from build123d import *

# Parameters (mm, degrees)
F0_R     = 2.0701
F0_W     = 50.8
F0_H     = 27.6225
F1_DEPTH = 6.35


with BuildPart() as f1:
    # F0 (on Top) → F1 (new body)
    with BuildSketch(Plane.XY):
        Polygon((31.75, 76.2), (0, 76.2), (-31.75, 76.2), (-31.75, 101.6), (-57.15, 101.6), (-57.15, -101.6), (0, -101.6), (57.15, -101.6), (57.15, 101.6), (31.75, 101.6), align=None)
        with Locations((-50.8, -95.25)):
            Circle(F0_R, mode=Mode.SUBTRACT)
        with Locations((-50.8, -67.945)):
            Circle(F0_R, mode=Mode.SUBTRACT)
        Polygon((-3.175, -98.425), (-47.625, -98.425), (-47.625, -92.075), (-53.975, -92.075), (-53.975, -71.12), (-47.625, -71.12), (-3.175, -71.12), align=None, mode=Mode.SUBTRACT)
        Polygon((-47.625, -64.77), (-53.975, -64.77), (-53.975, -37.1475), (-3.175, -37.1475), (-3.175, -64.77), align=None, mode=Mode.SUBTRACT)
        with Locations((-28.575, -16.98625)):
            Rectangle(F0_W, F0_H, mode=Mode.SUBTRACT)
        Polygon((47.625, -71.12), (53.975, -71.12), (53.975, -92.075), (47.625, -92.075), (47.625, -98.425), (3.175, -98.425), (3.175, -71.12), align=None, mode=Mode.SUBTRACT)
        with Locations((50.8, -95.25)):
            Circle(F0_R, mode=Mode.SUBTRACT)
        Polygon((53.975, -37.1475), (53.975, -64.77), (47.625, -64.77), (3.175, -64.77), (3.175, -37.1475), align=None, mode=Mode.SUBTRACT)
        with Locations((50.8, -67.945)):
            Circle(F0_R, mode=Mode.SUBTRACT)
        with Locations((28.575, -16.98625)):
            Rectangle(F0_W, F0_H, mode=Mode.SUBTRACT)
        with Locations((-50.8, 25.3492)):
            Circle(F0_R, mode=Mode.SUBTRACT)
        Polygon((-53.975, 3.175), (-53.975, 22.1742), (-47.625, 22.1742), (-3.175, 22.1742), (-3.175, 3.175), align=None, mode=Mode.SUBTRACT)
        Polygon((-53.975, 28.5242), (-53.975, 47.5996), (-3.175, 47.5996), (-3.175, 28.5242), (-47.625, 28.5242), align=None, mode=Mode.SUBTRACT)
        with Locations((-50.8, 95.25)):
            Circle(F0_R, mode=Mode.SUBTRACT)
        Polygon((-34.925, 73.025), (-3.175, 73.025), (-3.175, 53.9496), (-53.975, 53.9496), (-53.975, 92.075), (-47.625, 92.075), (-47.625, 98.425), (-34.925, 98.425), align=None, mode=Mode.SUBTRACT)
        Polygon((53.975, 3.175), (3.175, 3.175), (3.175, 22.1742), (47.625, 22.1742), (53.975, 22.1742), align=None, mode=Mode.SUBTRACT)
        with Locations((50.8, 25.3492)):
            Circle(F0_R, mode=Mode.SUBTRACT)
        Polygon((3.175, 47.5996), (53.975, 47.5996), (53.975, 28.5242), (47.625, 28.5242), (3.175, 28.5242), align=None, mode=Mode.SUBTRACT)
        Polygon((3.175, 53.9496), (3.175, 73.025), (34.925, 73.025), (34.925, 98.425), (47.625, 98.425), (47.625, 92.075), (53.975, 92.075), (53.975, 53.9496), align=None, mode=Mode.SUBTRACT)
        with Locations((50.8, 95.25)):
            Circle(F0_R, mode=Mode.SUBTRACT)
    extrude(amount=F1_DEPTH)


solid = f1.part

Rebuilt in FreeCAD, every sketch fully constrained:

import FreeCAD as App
import Part
import Sketcher
from FreeCAD import Vector
Q = App.Units.Quantity

doc = App.newDocument("Part")
params = doc.addObject("Spreadsheet::Sheet", "Params")
for row, (alias, value) in enumerate([
    ("sketch1_width", "1 in"),
    ("sketch1_width2", "2 in"),
    ("sketch1_height", "8 in"),
    ("sketch1_diameter", "0.163 in"),
    ("sketch1_width3", "2.5 in"),
    ("pad1_length", "0.25 in"),
], start=1):
    params.set(f"A{row}", alias)
    params.set(f"B{row}", "=" + value)
    params.setAlias(f"B{row}", alias)

body = doc.addObject("PartDesign::Body", "Body")

sketch1 = body.newObject("Sketcher::SketchObject", "Sketch")
sketch1.AttachmentSupport = (doc.getObject("XY_Plane"), [""])
sketch1.MapMode = "FlatFace"
sketch1.addGeometry(Part.LineSegment(Vector(31.75, 76.2, 0), Vector(-31.75, 76.2, 0)), False)
sketch1.addGeometry(Part.LineSegment(Vector(-31.75, 76.2, 0), Vector(-31.75, 101.6, 0)), False)
sketch1.addGeometry(Part.LineSegment(Vector(-31.75, 101.6, 0), Vector(-57.15, 101.6, 0)), False)
sketch1.addGeometry(Part.LineSegment(Vector(-57.15, 101.6, 0), Vector(-57.15, -101.6, 0)), False)
sketch1.addGeometry(Part.LineSegment(Vector(-57.15, -101.6, 0), Vector(57.15, -101.6, 0)), False)
sketch1.addGeometry(Part.LineSegment(Vector(57.15, -101.6, 0), Vector(57.15, 101.6, 0)), False)
sketch1.addGeometry(Part.LineSegment(Vector(57.15, 101.6, 0), Vector(31.75, 101.6, 0)), False)
sketch1.addGeometry(Part.LineSegment(Vector(31.75, 101.6, 0), Vector(31.75, 76.2, 0)), False)
sketch1.addGeometry(Part.Circle(Vector(-50.8, -95.25, 0), Vector(0, 0, 1), 2.0701), False)
sketch1.addGeometry(Part.LineSegment(Vector(-3.175, -71.12, 0), Vector(-3.175, -98.425, 0)), False)
sketch1.addGeometry(Part.LineSegment(Vector(-3.175, -98.425, 0), Vector(-47.625, -98.425, 0)), False)
sketch1.addGeometry(Part.LineSegment(Vector(-47.625, -98.425, 0), Vector(-47.625, -92.075, 0)), False)
sketch1.addGeometry(Part.LineSegment(Vector(-47.625, -92.075, 0), Vector(-53.975, -92.075, 0)), False)
sketch1.addGeometry(Part.LineSegment(Vector(-53.975, -92.075, 0), Vector(-53.975, -71.12, 0)), False)
sketch1.addGeometry(Part.LineSegment(Vector(-53.975, -71.12, 0), Vector(-3.175, -71.12, 0)), False)
sketch1.addGeometry(Part.Circle(Vector(-50.8, -67.945, 0), Vector(0, 0, 1), 2.0701), False)
sketch1.addGeometry(Part.LineSegment(Vector(-3.175, -64.77, 0), Vector(-53.975, -64.77, 0)), False)
sketch1.addGeometry(Part.LineSegment(Vector(-53.975, -64.77, 0), Vector(-53.975, -37.1475, 0)), False)
sketch1.addGeometry(Part.LineSegment(Vector(-53.975, -37.1475, 0), Vector(-3.175, -37.1475, 0)), False)
sketch1.addGeometry(Part.LineSegment(Vector(-3.175, -37.1475, 0), Vector(-3.175, -64.77, 0)), False)
sketch1.addGeometry(Part.LineSegment(Vector(-3.175, -30.7975, 0), Vector(-53.975, -30.7975, 0)), False)
sketch1.addGeometry(Part.LineSegment(Vector(-53.975, -30.7975, 0), Vector(-53.975, -3.175, 0)), False)
sketch1.addGeometry(Part.LineSegment(Vector(-53.975, -3.175, 0), Vector(-3.175, -3.175, 0)), False)
sketch1.addGeometry(Part.LineSegment(Vector(-3.175, -3.175, 0), Vector(-3.175, -30.7975, 0)), False)
sketch1.addGeometry(Part.LineSegment(Vector(3.175, -71.12, 0), Vector(53.975, -71.12, 0)), False)
sketch1.addGeometry(Part.LineSegment(Vector(53.975, -71.12, 0), Vector(53.975, -92.075, 0)), False)
sketch1.addGeometry(Part.LineSegment(Vector(53.975, -92.075, 0), Vector(47.625, -92.075, 0)), False)
sketch1.addGeometry(Part.LineSegment(Vector(47.625, -92.075, 0), Vector(47.625, -98.425, 0)), False)
sketch1.addGeometry(Part.LineSegment(Vector(47.625, -98.425, 0), Vector(3.175, -98.425, 0)), False)
sketch1.addGeometry(Part.LineSegment(Vector(3.175, -98.425, 0), Vector(3.175, -71.12, 0)), False)
sketch1.addGeometry(Part.Circle(Vector(50.8, -95.25, 0), Vector(0, 0, 1), 2.0701), False)
sketch1.addGeometry(Part.LineSegment(Vector(3.175, -37.1475, 0), Vector(53.975, -37.1475, 0)), False)
sketch1.addGeometry(Part.LineSegment(Vector(53.975, -37.1475, 0), Vector(53.975, -64.77, 0)), False)
sketch1.addGeometry(Part.LineSegment(Vector(53.975, -64.77, 0), Vector(3.175, -64.77, 0)), False)
sketch1.addGeometry(Part.LineSegment(Vector(3.175, -64.77, 0), Vector(3.175, -37.1475, 0)), False)
sketch1.addGeometry(Part.Circle(Vector(50.8, -67.945, 0), Vector(0, 0, 1), 2.0701), False)
sketch1.addGeometry(Part.LineSegment(Vector(53.975, -30.7975, 0), Vector(3.175, -30.7975, 0)), False)
sketch1.addGeometry(Part.LineSegment(Vector(3.175, -30.7975, 0), Vector(3.175, -3.175, 0)), False)
sketch1.addGeometry(Part.LineSegment(Vector(3.175, -3.175, 0), Vector(53.975, -3.175, 0)), False)
sketch1.addGeometry(Part.LineSegment(Vector(53.975, -3.175, 0), Vector(53.975, -30.7975, 0)), False)
sketch1.addGeometry(Part.LineSegment(Vector(-3.175, 3.175, 0), Vector(-53.975, 3.175, 0)), False)
sketch1.addGeometry(Part.LineSegment(Vector(-53.975, 3.175, 0), Vector(-53.975, 22.1742, 0)), False)
sketch1.addGeometry(Part.LineSegment(Vector(-53.975, 22.1742, 0), Vector(-3.175, 22.1742, 0)), False)
sketch1.addGeometry(Part.LineSegment(Vector(-3.175, 22.1742, 0), Vector(-3.175, 3.175, 0)), False)
sketch1.addGeometry(Part.Circle(Vector(-50.8, 25.3492, 0), Vector(0, 0, 1), 2.0701), False)
sketch1.addGeometry(Part.LineSegment(Vector(-3.175, 28.5242, 0), Vector(-53.975, 28.5242, 0)), False)
sketch1.addGeometry(Part.LineSegment(Vector(-53.975, 28.5242, 0), Vector(-53.975, 47.5996, 0)), False)
sketch1.addGeometry(Part.LineSegment(Vector(-53.975, 47.5996, 0), Vector(-3.175, 47.5996, 0)), False)
sketch1.addGeometry(Part.LineSegment(Vector(-3.175, 47.5996, 0), Vector(-3.175, 28.5242, 0)), False)
sketch1.addGeometry(Part.Circle(Vector(-50.8, 95.25, 0), Vector(0, 0, 1), 2.0701), False)
sketch1.addGeometry(Part.LineSegment(Vector(-34.925, 98.425, 0), Vector(-34.925, 73.025, 0)), False)
sketch1.addGeometry(Part.LineSegment(Vector(-34.925, 73.025, 0), Vector(-3.175, 73.025, 0)), False)
sketch1.addGeometry(Part.LineSegment(Vector(-3.175, 73.025, 0), Vector(-3.175, 53.9496, 0)), False)
sketch1.addGeometry(Part.LineSegment(Vector(-3.175, 53.9496, 0), Vector(-53.975, 53.9496, 0)), False)
sketch1.addGeometry(Part.LineSegment(Vector(-53.975, 53.9496, 0), Vector(-53.975, 92.075, 0)), False)
sketch1.addGeometry(Part.LineSegment(Vector(-53.975, 92.075, 0), Vector(-47.625, 92.075, 0)), False)
sketch1.addGeometry(Part.LineSegment(Vector(-47.625, 92.075, 0), Vector(-47.625, 98.425, 0)), False)
sketch1.addGeometry(Part.LineSegment(Vector(-47.625, 98.425, 0), Vector(-34.925, 98.425, 0)), False)
sketch1.addGeometry(Part.LineSegment(Vector(53.975, 22.1742, 0), Vector(53.975, 3.175, 0)), False)
sketch1.addGeometry(Part.LineSegment(Vector(53.975, 3.175, 0), Vector(3.175, 3.175, 0)), False)
sketch1.addGeometry(Part.LineSegment(Vector(3.175, 3.175, 0), Vector(3.175, 22.1742, 0)), False)
sketch1.addGeometry(Part.LineSegment(Vector(3.175, 22.1742, 0), Vector(53.975, 22.1742, 0)), False)
sketch1.addGeometry(Part.LineSegment(Vector(3.175, 28.5242, 0), Vector(3.175, 47.5996, 0)), False)
sketch1.addGeometry(Part.LineSegment(Vector(3.175, 47.5996, 0), Vector(53.975, 47.5996, 0)), False)
sketch1.addGeometry(Part.LineSegment(Vector(53.975, 47.5996, 0), Vector(53.975, 28.5242, 0)), False)
sketch1.addGeometry(Part.LineSegment(Vector(53.975, 28.5242, 0), Vector(3.175, 28.5242, 0)), False)
sketch1.addGeometry(Part.Circle(Vector(50.8, 25.3492, 0), Vector(0, 0, 1), 2.0701), False)
sketch1.addGeometry(Part.LineSegment(Vector(53.975, 53.9496, 0), Vector(3.175, 53.9496, 0)), False)
sketch1.addGeometry(Part.LineSegment(Vector(3.175, 53.9496, 0), Vector(3.175, 73.025, 0)), False)
sketch1.addGeometry(Part.LineSegment(Vector(3.175, 73.025, 0), Vector(34.925, 73.025, 0)), False)
sketch1.addGeometry(Part.LineSegment(Vector(34.925, 73.025, 0), Vector(34.925, 98.425, 0)), False)
sketch1.addGeometry(Part.LineSegment(Vector(34.925, 98.425, 0), Vector(47.625, 98.425, 0)), False)
sketch1.addGeometry(Part.LineSegment(Vector(47.625, 98.425, 0), Vector(47.625, 92.075, 0)), False)
sketch1.addGeometry(Part.LineSegment(Vector(47.625, 92.075, 0), Vector(53.975, 92.075, 0)), False)
sketch1.addGeometry(Part.LineSegment(Vector(53.975, 92.075, 0), Vector(53.975, 53.9496, 0)), False)
sketch1.addGeometry(Part.Circle(Vector(50.8, 95.25, 0), Vector(0, 0, 1), 2.0701), False)
sketch1.addConstraint(Sketcher.Constraint("Coincident", 0, 2, 1, 1))
sketch1.addConstraint(Sketcher.Constraint("Coincident", 1, 2, 2, 1))
sketch1.addConstraint(Sketcher.Constraint("Coincident", 2, 2, 3, 1))
sketch1.addConstraint(Sketcher.Constraint("Coincident", 3, 2, 4, 1))
sketch1.addConstraint(Sketcher.Constraint("Coincident", 4, 2, 5, 1))
sketch1.addConstraint(Sketcher.Constraint("Coincident", 5, 2, 6, 1))
sketch1.addConstraint(Sketcher.Constraint("Coincident", 6, 2, 7, 1))
sketch1.addConstraint(Sketcher.Constraint("Coincident", 7, 2, 0, 1))
sketch1.addConstraint(Sketcher.Constraint("Coincident", 9, 2, 10, 1))
sketch1.addConstraint(Sketcher.Constraint("Coincident", 10, 2, 11, 1))
sketch1.addConstraint(Sketcher.Constraint("Coincident", 11, 2, 12, 1))
sketch1.addConstraint(Sketcher.Constraint("Coincident", 12, 2, 13, 1))
sketch1.addConstraint(Sketcher.Constraint("Coincident", 13, 2, 14, 1))
sketch1.addConstraint(Sketcher.Constraint("Coincident", 14, 2, 9, 1))
sketch1.addConstraint(Sketcher.Constraint("Coincident", 16, 2, 17, 1))
sketch1.addConstraint(Sketcher.Constraint("Coincident", 17, 2, 18, 1))
sketch1.addConstraint(Sketcher.Constraint("Coincident", 18, 2, 19, 1))
sketch1.addConstraint(Sketcher.Constraint("Coincident", 19, 2, 16, 1))
sketch1.addConstraint(Sketcher.Constraint("Coincident", 20, 2, 21, 1))
sketch1.addConstraint(Sketcher.Constraint("Coincident", 21, 2, 22, 1))
sketch1.addConstraint(Sketcher.Constraint("Coincident", 22, 2, 23, 1))
sketch1.addConstraint(Sketcher.Constraint("Coincident", 23, 2, 20, 1))
sketch1.addConstraint(Sketcher.Constraint("Coincident", 24, 2, 25, 1))
sketch1.addConstraint(Sketcher.Constraint("Coincident", 25, 2, 26, 1))
sketch1.addConstraint(Sketcher.Constraint("Coincident", 26, 2, 27, 1))
sketch1.addConstraint(Sketcher.Constraint("Coincident", 27, 2, 28, 1))
sketch1.addConstraint(Sketcher.Constraint("Coincident", 28, 2, 29, 1))
sketch1.addConstraint(Sketcher.Constraint("Coincident", 29, 2, 24, 1))
sketch1.addConstraint(Sketcher.Constraint("Coincident", 31, 2, 32, 1))
sketch1.addConstraint(Sketcher.Constraint("Coincident", 32, 2, 33, 1))
sketch1.addConstraint(Sketcher.Constraint("Coincident", 33, 2, 34, 1))
sketch1.addConstraint(Sketcher.Constraint("Coincident", 34, 2, 31, 1))
sketch1.addConstraint(Sketcher.Constraint("Coincident", 36, 2, 37, 1))
sketch1.addConstraint(Sketcher.Constraint("Coincident", 37, 2, 38, 1))
sketch1.addConstraint(Sketcher.Constraint("Coincident", 38, 2, 39, 1))
sketch1.addConstraint(Sketcher.Constraint("Coincident", 39, 2, 36, 1))
sketch1.addConstraint(Sketcher.Constraint("Coincident", 40, 2, 41, 1))
sketch1.addConstraint(Sketcher.Constraint("Coincident", 41, 2, 42, 1))
sketch1.addConstraint(Sketcher.Constraint("Coincident", 42, 2, 43, 1))
sketch1.addConstraint(Sketcher.Constraint("Coincident", 43, 2, 40, 1))
sketch1.addConstraint(Sketcher.Constraint("Coincident", 45, 2, 46, 1))
sketch1.addConstraint(Sketcher.Constraint("Coincident", 46, 2, 47, 1))
sketch1.addConstraint(Sketcher.Constraint("Coincident", 47, 2, 48, 1))
sketch1.addConstraint(Sketcher.Constraint("Coincident", 48, 2, 45, 1))
sketch1.addConstraint(Sketcher.Constraint("Coincident", 50, 2, 51, 1))
sketch1.addConstraint(Sketcher.Constraint("Coincident", 51, 2, 52, 1))
sketch1.addConstraint(Sketcher.Constraint("Coincident", 52, 2, 53, 1))
sketch1.addConstraint(Sketcher.Constraint("Coincident", 53, 2, 54, 1))
sketch1.addConstraint(Sketcher.Constraint("Coincident", 54, 2, 55, 1))
sketch1.addConstraint(Sketcher.Constraint("Coincident", 55, 2, 56, 1))
sketch1.addConstraint(Sketcher.Constraint("Coincident", 56, 2, 57, 1))
sketch1.addConstraint(Sketcher.Constraint("Coincident", 57, 2, 50, 1))
sketch1.addConstraint(Sketcher.Constraint("Coincident", 58, 2, 59, 1))
sketch1.addConstraint(Sketcher.Constraint("Coincident", 59, 2, 60, 1))
sketch1.addConstraint(Sketcher.Constraint("Coincident", 60, 2, 61, 1))
sketch1.addConstraint(Sketcher.Constraint("Coincident", 61, 2, 58, 1))
sketch1.addConstraint(Sketcher.Constraint("Coincident", 62, 2, 63, 1))
sketch1.addConstraint(Sketcher.Constraint("Coincident", 63, 2, 64, 1))
sketch1.addConstraint(Sketcher.Constraint("Coincident", 64, 2, 65, 1))
sketch1.addConstraint(Sketcher.Constraint("Coincident", 65, 2, 62, 1))
sketch1.addConstraint(Sketcher.Constraint("Coincident", 67, 2, 68, 1))
sketch1.addConstraint(Sketcher.Constraint("Coincident", 68, 2, 69, 1))
sketch1.addConstraint(Sketcher.Constraint("Coincident", 69, 2, 70, 1))
sketch1.addConstraint(Sketcher.Constraint("Coincident", 70, 2, 71, 1))
sketch1.addConstraint(Sketcher.Constraint("Coincident", 71, 2, 72, 1))
sketch1.addConstraint(Sketcher.Constraint("Coincident", 72, 2, 73, 1))
sketch1.addConstraint(Sketcher.Constraint("Coincident", 73, 2, 74, 1))
sketch1.addConstraint(Sketcher.Constraint("Coincident", 74, 2, 67, 1))
sketch1.addConstraint(Sketcher.Constraint("Horizontal", 0))
sketch1.addConstraint(Sketcher.Constraint("Vertical", 1))
sketch1.addConstraint(Sketcher.Constraint("Horizontal", 2))
sketch1.addConstraint(Sketcher.Constraint("Vertical", 3))
sketch1.addConstraint(Sketcher.Constraint("Horizontal", 4))
sketch1.addConstraint(Sketcher.Constraint("Vertical", 5))
sketch1.addConstraint(Sketcher.Constraint("Horizontal", 6))
sketch1.addConstraint(Sketcher.Constraint("Vertical", 7))
sketch1.addConstraint(Sketcher.Constraint("Vertical", 9))
sketch1.addConstraint(Sketcher.Constraint("Horizontal", 10))
sketch1.addConstraint(Sketcher.Constraint("Vertical", 11))
sketch1.addConstraint(Sketcher.Constraint("Horizontal", 12))
sketch1.addConstraint(Sketcher.Constraint("Vertical", 13))
sketch1.addConstraint(Sketcher.Constraint("Horizontal", 14))
sketch1.addConstraint(Sketcher.Constraint("Horizontal", 16))
sketch1.addConstraint(Sketcher.Constraint("Vertical", 17))
sketch1.addConstraint(Sketcher.Constraint("Horizontal", 18))
sketch1.addConstraint(Sketcher.Constraint("Vertical", 19))
sketch1.addConstraint(Sketcher.Constraint("Horizontal", 20))
sketch1.addConstraint(Sketcher.Constraint("Vertical", 21))
sketch1.addConstraint(Sketcher.Constraint("Horizontal", 22))
sketch1.addConstraint(Sketcher.Constraint("Vertical", 23))
sketch1.addConstraint(Sketcher.Constraint("Horizontal", 24))
sketch1.addConstraint(Sketcher.Constraint("Vertical", 25))
sketch1.addConstraint(Sketcher.Constraint("Horizontal", 26))
sketch1.addConstraint(Sketcher.Constraint("Vertical", 27))
sketch1.addConstraint(Sketcher.Constraint("Horizontal", 28))
sketch1.addConstraint(Sketcher.Constraint("Vertical", 29))
sketch1.addConstraint(Sketcher.Constraint("Horizontal", 31))
sketch1.addConstraint(Sketcher.Constraint("Vertical", 32))
sketch1.addConstraint(Sketcher.Constraint("Horizontal", 33))
sketch1.addConstraint(Sketcher.Constraint("Vertical", 34))
sketch1.addConstraint(Sketcher.Constraint("Horizontal", 36))
sketch1.addConstraint(Sketcher.Constraint("Vertical", 37))
sketch1.addConstraint(Sketcher.Constraint("Horizontal", 38))
sketch1.addConstraint(Sketcher.Constraint("Vertical", 39))
sketch1.addConstraint(Sketcher.Constraint("Horizontal", 40))
sketch1.addConstraint(Sketcher.Constraint("Vertical", 41))
sketch1.addConstraint(Sketcher.Constraint("Horizontal", 42))
sketch1.addConstraint(Sketcher.Constraint("Vertical", 43))
sketch1.addConstraint(Sketcher.Constraint("Horizontal", 45))
sketch1.addConstraint(Sketcher.Constraint("Vertical", 46))
sketch1.addConstraint(Sketcher.Constraint("Horizontal", 47))
sketch1.addConstraint(Sketcher.Constraint("Vertical", 48))
sketch1.addConstraint(Sketcher.Constraint("Vertical", 50))
sketch1.addConstraint(Sketcher.Constraint("Horizontal", 51))
sketch1.addConstraint(Sketcher.Constraint("Vertical", 52))
sketch1.addConstraint(Sketcher.Constraint("Horizontal", 53))
sketch1.addConstraint(Sketcher.Constraint("Vertical", 54))
sketch1.addConstraint(Sketcher.Constraint("Horizontal", 55))
sketch1.addConstraint(Sketcher.Constraint("Vertical", 56))
sketch1.addConstraint(Sketcher.Constraint("Horizontal", 57))
sketch1.addConstraint(Sketcher.Constraint("Vertical", 58))
sketch1.addConstraint(Sketcher.Constraint("Horizontal", 59))
sketch1.addConstraint(Sketcher.Constraint("Vertical", 60))
sketch1.addConstraint(Sketcher.Constraint("Horizontal", 61))
sketch1.addConstraint(Sketcher.Constraint("Vertical", 62))
sketch1.addConstraint(Sketcher.Constraint("Horizontal", 63))
sketch1.addConstraint(Sketcher.Constraint("Vertical", 64))
sketch1.addConstraint(Sketcher.Constraint("Horizontal", 65))
sketch1.addConstraint(Sketcher.Constraint("Horizontal", 67))
sketch1.addConstraint(Sketcher.Constraint("Vertical", 68))
sketch1.addConstraint(Sketcher.Constraint("Horizontal", 69))
sketch1.addConstraint(Sketcher.Constraint("Vertical", 70))
sketch1.addConstraint(Sketcher.Constraint("Horizontal", 71))
sketch1.addConstraint(Sketcher.Constraint("Vertical", 72))
sketch1.addConstraint(Sketcher.Constraint("Horizontal", 73))
sketch1.addConstraint(Sketcher.Constraint("Vertical", 74))
sketch1.addConstraint(Sketcher.Constraint("Equal", 8, 15))
sketch1.addConstraint(Sketcher.Constraint("Equal", 15, 30))
sketch1.addConstraint(Sketcher.Constraint("Equal", 30, 35))
sketch1.addConstraint(Sketcher.Constraint("Equal", 35, 44))
sketch1.addConstraint(Sketcher.Constraint("Equal", 44, 49))
sketch1.addConstraint(Sketcher.Constraint("Equal", 49, 66))
sketch1.addConstraint(Sketcher.Constraint("Equal", 66, 75))
sketch1.addConstraint(Sketcher.Constraint("Symmetric", 30, 3, 49, 3, -1, 1))
sketch1.addConstraint(Sketcher.Constraint("Symmetric", 8, 3, 75, 3, -1, 1))
sketch1.addConstraint(Sketcher.Constraint("Symmetric", 2, 2, 4, 2, -1, 1))
sketch1.addConstraint(Sketcher.Constraint("Symmetric", 38, 2, 40, 2, -1, 1))
sketch1.addConstraint(Sketcher.Constraint("Symmetric", 25, 2, 54, 2, -1, 1))
sketch1.addConstraint(Sketcher.Constraint("Symmetric", 27, 2, 56, 2, -1, 1))
sketch1.addConstraint(Sketcher.Constraint("Symmetric", 21, 2, 58, 2, -1, 1))
sketch1.addConstraint(Sketcher.Constraint("Symmetric", 10, 2, 71, 2, -1, 1))
sketch1.addConstraint(Sketcher.Constraint("Symmetric", 12, 2, 73, 2, -1, 1))
sketch1.addConstraint(Sketcher.Constraint("Symmetric", 8, 3, 30, 3, -2))
sketch1.addConstraint(Sketcher.Constraint("Symmetric", 15, 3, 35, 3, -2))
sketch1.addConstraint(Sketcher.Constraint("Symmetric", 44, 3, 66, 3, -2))
sketch1.addConstraint(Sketcher.Constraint("Symmetric", 1, 2, 6, 2, -2))
sketch1.addConstraint(Sketcher.Constraint("Symmetric", 13, 2, 24, 2, -2))
sketch1.addConstraint(Sketcher.Constraint("Symmetric", 11, 2, 26, 2, -2))
sketch1.addConstraint(Sketcher.Constraint("Symmetric", 9, 2, 28, 2, -2))
sketch1.addConstraint(Sketcher.Constraint("Symmetric", 17, 2, 31, 2, -2))
sketch1.addConstraint(Sketcher.Constraint("Symmetric", 19, 2, 33, 2, -2))
sketch1.addConstraint(Sketcher.Constraint("Symmetric", 23, 2, 36, 2, -2))
sketch1.addConstraint(Sketcher.Constraint("Symmetric", 21, 2, 38, 2, -2))
sketch1.addConstraint(Sketcher.Constraint("Symmetric", 42, 2, 60, 2, -2))
sketch1.addConstraint(Sketcher.Constraint("Symmetric", 47, 2, 62, 2, -2))
sketch1.addConstraint(Sketcher.Constraint("Symmetric", 45, 2, 64, 2, -2))
sketch1.addConstraint(Sketcher.Constraint("Symmetric", 52, 2, 67, 2, -2))
sketch1.addConstraint(Sketcher.Constraint("Symmetric", 50, 2, 69, 2, -2))
sketch1.addConstraint(Sketcher.Constraint("Vertical", 8, 3, 15, 3))
sketch1.addConstraint(Sketcher.Constraint("Vertical", 15, 3, 44, 3))
sketch1.addConstraint(Sketcher.Constraint("Vertical", 13, 2, 16, 2))
sketch1.addConstraint(Sketcher.Constraint("Vertical", 14, 2, 18, 2))
sketch1.addConstraint(Sketcher.Constraint("Vertical", 17, 2, 20, 2))
sketch1.addConstraint(Sketcher.Constraint("Vertical", 19, 2, 22, 2))
sketch1.addConstraint(Sketcher.Constraint("Vertical", 23, 2, 42, 2))
sketch1.addConstraint(Sketcher.Constraint("Vertical", 41, 2, 45, 2))
sketch1.addConstraint(Sketcher.Constraint("Vertical", 43, 2, 47, 2))
sketch1.addConstraint(Sketcher.Constraint("Vertical", 48, 2, 51, 2))
sketch1.addConstraint(Sketcher.Constraint("Equal", 6, 1))
sketch1.addConstraint(Sketcher.Constraint("Equal", 73, 11))
sketch1.addConstraint(Sketcher.Constraint("Equal", 19, 21))
sketch1.addConstraint(Sketcher.Constraint("Equal", 7, 50))
sketch1.addConstraint(Sketcher.Constraint("Equal", 48, 52))
sketch1.addConstraint(Sketcher.Constraint("DistanceX", 2, 2, 2, 1, Q("1 in")))
sketch1.addConstraint(Sketcher.Constraint("DistanceX", 14, 1, 14, 2, Q("2 in")))
sketch1.addConstraint(Sketcher.Constraint("DistanceY", 3, 2, 3, 1, Q("8 in")))
sketch1.addConstraint(Sketcher.Constraint("Diameter", 8, Q("0.163 in")))
sketch1.addConstraint(Sketcher.Constraint("DistanceX", 0, 2, 0, 1, Q("2.5 in")))
sketch1.addConstraint(Sketcher.Constraint("DistanceX", 57, 1, 57, 2, Q("0.5 in")))
sketch1.addConstraint(Sketcher.Constraint("DistanceX", 8, 3, -1, 1, Q("2 in")))
sketch1.addConstraint(Sketcher.Constraint("DistanceX", 10, 2, 10, 1, Q("1.75 in")))
sketch1.addConstraint(Sketcher.Constraint("DistanceY", 13, 2, -1, 1, Q("2.8 in")))
sketch1.addConstraint(Sketcher.Constraint("DistanceY", 9, 2, 9, 1, Q("1.075 in")))
sketch1.addConstraint(Sketcher.Constraint("DistanceY", 41, 1, 41, 2, Q("0.748 in")))
sketch1.addConstraint(Sketcher.Constraint("DistanceY", 46, 1, 46, 2, Q("0.751 in")))
sketch1.addConstraint(Sketcher.Constraint("DistanceY", 8, 3, -1, 1, Q("3.75 in")))
sketch1.addConstraint(Sketcher.Constraint("DistanceY", 16, 2, -1, 1, Q("2.55 in")))
sketch1.addConstraint(Sketcher.Constraint("DistanceY", 17, 1, 17, 2, Q("1.0875 in")))
sketch1.addConstraint(Sketcher.Constraint("DistanceY", 15, 3, -1, 1, Q("2.675 in")))
sketch1.addConstraint(Sketcher.Constraint("DistanceY", -1, 1, 44, 3, Q("0.998 in")))
sketch1.addConstraint(Sketcher.Constraint("DistanceX", 9, 2, -1, 1, Q("0.125 in")))
sketch1.addConstraint(Sketcher.Constraint("DistanceY", 21, 2, -1, 1, Q("0.125 in")))
sketch1.addConstraint(Sketcher.Constraint("DistanceY", -1, 1, 45, 2, Q("1.123 in")))
sketch1.setExpression("Constraints[183]", "Params.sketch1_width")
sketch1.setExpression("Constraints[184]", "Params.sketch1_width2")
sketch1.setExpression("Constraints[185]", "Params.sketch1_height")
sketch1.setExpression("Constraints[186]", "Params.sketch1_diameter")
sketch1.setExpression("Constraints[187]", "Params.sketch1_width3")
pad1 = body.newObject("PartDesign::Pad", "Pad")
pad1.Profile = sketch1
pad1.setExpression("Length", "Params.pad1_length")

doc.recompute()
